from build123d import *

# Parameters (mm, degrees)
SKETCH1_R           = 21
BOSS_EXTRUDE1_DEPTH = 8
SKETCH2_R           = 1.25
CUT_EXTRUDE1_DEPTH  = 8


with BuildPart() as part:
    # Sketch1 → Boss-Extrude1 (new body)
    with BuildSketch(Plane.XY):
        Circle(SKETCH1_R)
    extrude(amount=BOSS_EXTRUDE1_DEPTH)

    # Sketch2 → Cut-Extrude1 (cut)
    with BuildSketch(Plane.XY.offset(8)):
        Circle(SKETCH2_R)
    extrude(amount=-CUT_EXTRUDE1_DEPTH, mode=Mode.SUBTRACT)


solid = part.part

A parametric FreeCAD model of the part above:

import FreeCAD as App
import Part
import Sketcher
Q = App.Units.Quantity

doc = App.newDocument("Part")
body = doc.addObject("PartDesign::Body", "Body")

sketch1 = doc.addObject("Sketcher::SketchObject", "Sketch")
body.addObject(sketch1)
sketch1.AttachmentSupport = (doc.XY_Plane, [""])
sketch1.MapMode = "FlatFace"
sketch1.addGeometry(Part.Circle(App.Vector(0, 0, 0), App.Vector(0, 0, 1), 21), False)
sketch1.addConstraint(Sketcher.Constraint("Coincident", 0, 3, -1, 1))
sketch1.addConstraint(Sketcher.Constraint("Diameter", 0, Q("42 mm")))
pad1 = doc.addObject("PartDesign::Pad", "Pad")
body.addObject(pad1)
pad1.Profile = sketch1
pad1.Length = 8

sketch2 = doc.addObject("Sketcher::SketchObject", "Sketch001")
body.addObject(sketch2)
sketch2.AttachmentSupport = (doc.XY_Plane, [""])
sketch2.MapMode = "FlatFace"
sketch2.AttachmentOffset = App.Placement(App.Vector(0, 0, 8), App.Rotation())
sketch2.addGeometry(Part.Circle(App.Vector(0, 0, 0), App.Vector(0, 0, 1), 1.2), False)
sketch2.addConstraint(Sketcher.Constraint("Coincident", 0, 3, -1, 1))
sketch2.addConstraint(Sketcher.Constraint("Diameter", 0, Q("2.5 mm")))
pocket1 = doc.addObject("PartDesign::Pocket", "Pocket")
body.addObject(pocket1)
pocket1.Profile = sketch2
pocket1.Length = 8

doc.recompute()
